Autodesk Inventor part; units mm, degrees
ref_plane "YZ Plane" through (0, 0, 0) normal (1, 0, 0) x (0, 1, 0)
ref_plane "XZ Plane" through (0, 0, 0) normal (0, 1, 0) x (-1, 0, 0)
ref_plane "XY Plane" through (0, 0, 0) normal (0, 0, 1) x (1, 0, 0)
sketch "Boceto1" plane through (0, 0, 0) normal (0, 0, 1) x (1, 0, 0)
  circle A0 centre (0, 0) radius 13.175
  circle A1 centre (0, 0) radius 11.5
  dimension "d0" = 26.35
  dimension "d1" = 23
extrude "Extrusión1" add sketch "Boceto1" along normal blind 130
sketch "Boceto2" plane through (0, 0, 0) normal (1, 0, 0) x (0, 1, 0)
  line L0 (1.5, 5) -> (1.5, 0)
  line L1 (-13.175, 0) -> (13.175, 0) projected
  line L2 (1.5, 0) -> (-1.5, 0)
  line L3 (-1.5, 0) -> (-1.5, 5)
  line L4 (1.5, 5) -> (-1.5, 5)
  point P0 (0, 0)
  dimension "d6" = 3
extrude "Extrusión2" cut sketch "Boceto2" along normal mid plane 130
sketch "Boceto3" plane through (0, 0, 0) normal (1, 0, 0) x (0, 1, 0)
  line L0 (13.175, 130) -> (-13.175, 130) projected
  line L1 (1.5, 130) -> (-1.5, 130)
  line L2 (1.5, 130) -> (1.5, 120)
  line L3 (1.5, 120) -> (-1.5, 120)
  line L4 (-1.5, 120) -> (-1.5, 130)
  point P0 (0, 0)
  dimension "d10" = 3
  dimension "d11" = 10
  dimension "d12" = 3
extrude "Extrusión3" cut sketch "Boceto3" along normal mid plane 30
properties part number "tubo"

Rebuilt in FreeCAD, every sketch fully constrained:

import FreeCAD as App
import Part
import Sketcher

V = App.Vector
Q = App.Units.Quantity

doc = App.newDocument("Part")
body = doc.addObject("PartDesign::Body", "Body")

# Sketch on XY plane
sketch1 = doc.addObject("Sketcher::SketchObject", "Sketch")
body.addObject(sketch1)
sketch1.AttachmentSupport = (doc.XY_Plane, [""])
sketch1.MapMode = "FlatFace"
sketch1.addGeometry([
    Part.Circle(V(0, 0, 0), V(0, 0, 1), 13),
    Part.Circle(V(0, 0, 0), V(0, 0, 1), 12),
], False)
sketch1.addConstraint([
    Sketcher.Constraint("Coincident", 0, 3, -1, 1),
    Sketcher.Constraint("Coincident", 1, 3, -1, 1),
    Sketcher.Constraint("Diameter", 1, Q("23 mm")),
    Sketcher.Constraint("Diameter", 0, Q("26.35 mm")),
])
pad1 = doc.addObject("PartDesign::Pad", "Pad")
body.addObject(pad1)
pad1.Profile = sketch1
pad1.Length = 130

# Sketch on YZ plane
sketch2 = doc.addObject("Sketcher::SketchObject", "Sketch001")
body.addObject(sketch2)
sketch2.AttachmentSupport = (doc.YZ_Plane, [""])
sketch2.MapMode = "FlatFace"
sketch2.addGeometry([
    Part.LineSegment(V(1.5, 0, 0), V(1.5, 5, 0)),
    Part.LineSegment(V(1.5, 5, 0), V(-1.5, 5, 0)),
    Part.LineSegment(V(-1.5, 5, 0), V(-1.5, 0, 0)),
    Part.LineSegment(V(-1.5, 0, 0), V(1.5, 0, 0)),
], False)
sketch2.addConstraint([
    Sketcher.Constraint("Coincident", 0, 2, 1, 1),
    Sketcher.Constraint("Coincident", 1, 2, 2, 1),
    Sketcher.Constraint("Coincident", 2, 2, 3, 1),
    Sketcher.Constraint("Coincident", 3, 2, 0, 1),
    Sketcher.Constraint("Vertical", 0),
    Sketcher.Constraint("Horizontal", 1),
    Sketcher.Constraint("Vertical", 2),
    Sketcher.Constraint("Horizontal", 3),
    Sketcher.Constraint("Symmetric", 2, 2, 3, 2, -1, 1),
    Sketcher.Constraint("DistanceX", 1, 2, 1, 1, Q("3 mm")),
    Sketcher.Constraint("DistanceY", 0, 1, 0, 2, Q("5 mm")),
])
pocket1 = doc.addObject("PartDesign::Pocket", "Pocket")
body.addObject(pocket1)
pocket1.Profile = sketch2
pocket1.Length = 130
pocket1.Midplane = True

# Sketch on YZ plane
sketch3 = doc.addObject("Sketcher::SketchObject", "Sketch002")
body.addObject(sketch3)
sketch3.AttachmentSupport = (doc.YZ_Plane, [""])
sketch3.MapMode = "FlatFace"
sketch3.addGeometry([
    Part.LineSegment(V(1.5, 120, 0), V(1.5, 130, 0)),
    Part.LineSegment(V(1.5, 130, 0), V(-1.5, 130, 0)),
    Part.LineSegment(V(-1.5, 130, 0), V(-1.5, 120, 0)),
    Part.LineSegment(V(-1.5, 120, 0), V(1.5, 120, 0)),
], False)
sketch3.addConstraint([
    Sketcher.Constraint("Coincident", 0, 2, 1, 1),
    Sketcher.Constraint("Coincident", 1, 2, 2, 1),
    Sketcher.Constraint("Coincident", 2, 2, 3, 1),
    Sketcher.Constraint("Coincident", 3, 2, 0, 1),
    Sketcher.Constraint("Vertical", 0),
    Sketcher.Constraint("Horizontal", 1),
    Sketcher.Constraint("Vertical", 2),
    Sketcher.Constraint("Horizontal", 3),
    Sketcher.Constraint("DistanceX", 1, 2, 1, 1, Q("3 mm")),
    Sketcher.Constraint("DistanceY", 0, 1, 0, 2, Q("10 mm")),
    Sketcher.Constraint("DistanceY", -1, 1, 0, 2, Q("130 mm")),
    Sketcher.Constraint("DistanceX", -1, 1, 0, 2, Q("1.5 mm")),
])
pocket2 = doc.addObject("PartDesign::Pocket", "Pocket001")
body.addObject(pocket2)
pocket2.Profile = sketch3
pocket2.Length = 30
pocket2.Midplane = True

doc.recompute()
